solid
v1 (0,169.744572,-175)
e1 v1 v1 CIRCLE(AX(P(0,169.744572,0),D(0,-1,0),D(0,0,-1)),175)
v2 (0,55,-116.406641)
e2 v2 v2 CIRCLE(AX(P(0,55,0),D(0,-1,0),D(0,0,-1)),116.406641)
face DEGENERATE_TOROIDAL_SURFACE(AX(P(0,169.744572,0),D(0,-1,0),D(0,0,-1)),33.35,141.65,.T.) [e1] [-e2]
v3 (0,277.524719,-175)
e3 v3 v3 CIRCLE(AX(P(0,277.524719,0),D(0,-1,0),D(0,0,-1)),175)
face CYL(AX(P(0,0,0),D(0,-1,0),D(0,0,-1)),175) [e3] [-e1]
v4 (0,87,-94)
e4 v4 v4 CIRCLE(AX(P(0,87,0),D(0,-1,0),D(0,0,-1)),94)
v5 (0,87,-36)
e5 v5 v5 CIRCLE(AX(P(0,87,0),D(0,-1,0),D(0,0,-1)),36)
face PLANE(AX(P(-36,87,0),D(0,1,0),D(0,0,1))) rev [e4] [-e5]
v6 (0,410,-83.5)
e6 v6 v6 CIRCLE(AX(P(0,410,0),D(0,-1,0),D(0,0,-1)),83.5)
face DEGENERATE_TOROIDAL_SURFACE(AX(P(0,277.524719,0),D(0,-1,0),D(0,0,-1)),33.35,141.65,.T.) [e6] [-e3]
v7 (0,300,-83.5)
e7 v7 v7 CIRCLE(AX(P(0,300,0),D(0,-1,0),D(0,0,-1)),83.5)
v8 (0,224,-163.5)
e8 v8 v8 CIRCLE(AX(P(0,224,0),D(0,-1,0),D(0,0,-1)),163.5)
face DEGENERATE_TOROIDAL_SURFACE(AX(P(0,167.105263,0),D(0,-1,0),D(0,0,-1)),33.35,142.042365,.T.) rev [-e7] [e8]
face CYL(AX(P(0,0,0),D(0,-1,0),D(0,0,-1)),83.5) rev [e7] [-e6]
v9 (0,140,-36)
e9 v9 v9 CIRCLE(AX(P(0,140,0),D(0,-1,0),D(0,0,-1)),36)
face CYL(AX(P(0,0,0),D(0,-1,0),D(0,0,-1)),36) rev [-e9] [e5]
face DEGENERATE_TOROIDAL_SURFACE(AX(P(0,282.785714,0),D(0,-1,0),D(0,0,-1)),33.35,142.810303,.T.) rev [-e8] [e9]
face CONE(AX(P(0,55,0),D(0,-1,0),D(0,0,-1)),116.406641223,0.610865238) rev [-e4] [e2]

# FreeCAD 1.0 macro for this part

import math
import FreeCAD as App
import Part
import Sketcher
from FreeCAD import Vector
Q = App.Units.Quantity

doc = App.newDocument("Part")
body = doc.addObject("PartDesign::Body", "Body")

# Sketch on XY plane
sketch1 = doc.addObject("Sketcher::SketchObject", "Sketch")
body.addObject(sketch1)
sketch1.AttachmentSupport = (doc.XY_Plane, [""])
sketch1.MapMode = "FlatFace"
sketch1.addGeometry([
    Part.LineSegment(Vector(-84, 300, 0), Vector(-84, 410, 0)),  # 0
    Part.ArcOfCircle(Part.Circle(Vector(-33, 278, 0), Vector(0, 0, 1), 142), math.radians(111), math.radians(180)),  # 1
    Part.LineSegment(Vector(-175, 278, 0), Vector(-175, 170, 0)),  # 2
    Part.ArcOfCircle(Part.Circle(Vector(-33, 170, 0), Vector(0, 0, 1), 142), math.radians(-180), math.radians(-126)),  # 3
    Part.LineSegment(Vector(-116, 55, 0), Vector(-94, 87, 0)),  # 4
    Part.LineSegment(Vector(-94, 87, 0), Vector(-36, 87, 0)),  # 5
    Part.LineSegment(Vector(-36, 87, 0), Vector(-36, 140, 0)),  # 6
    Part.ArcOfCircle(Part.Circle(Vector(-33, 283, 0), Vector(0, 0, 1), 143), math.radians(-156), math.radians(-91)),  # 7
    Part.ArcOfCircle(Part.Circle(Vector(-33, 167, 0), Vector(0, 0, 1), 142), math.radians(111), math.radians(156)),  # 8
], False)
sketch1.addConstraint([
    Sketcher.Constraint("Coincident", 0, 2, 1, 1),
    Sketcher.Constraint("Tangent", 1, 2, 2, 1),
    Sketcher.Constraint("Tangent", 2, 2, 3, 1),
    Sketcher.Constraint("Coincident", 3, 2, 4, 1),
    Sketcher.Constraint("Coincident", 4, 2, 5, 1),
    Sketcher.Constraint("Coincident", 5, 2, 6, 1),
    Sketcher.Constraint("Coincident", 6, 2, 7, 2),
    Sketcher.Constraint("Coincident", 7, 1, 8, 2),
    Sketcher.Constraint("Coincident", 8, 1, 0, 1),
    Sketcher.Constraint("Vertical", 0),
    Sketcher.Constraint("Vertical", 2),
    Sketcher.Constraint("Horizontal", 5),
    Sketcher.Constraint("Vertical", 6),
    Sketcher.Constraint("Equal", 1, 3),
    Sketcher.Constraint("Vertical", 3, 3, 7, 3),
    Sketcher.Constraint("Vertical", 7, 3, 8, 3),
    Sketcher.Constraint("DistanceX", 5, 1, 5, 2, Q("58 mm")),
    Sketcher.Constraint("DistanceY", 0, 1, 0, 2, Q("110 mm")),
    Sketcher.Constraint("DistanceY", 6, 1, 6, 2, Q("53 mm")),
    Sketcher.Constraint("Angle", 4, Q("55 deg")),
    Sketcher.Constraint("Radius", 1, Q("141.65 mm")),
    Sketcher.Constraint("DistanceY", -1, 1, 0, 2, Q("410 mm")),
    Sketcher.Constraint("DistanceX", 1, 2, -1, 1, Q("175 mm")),
    Sketcher.Constraint("DistanceY", -1, 1, 3, 2, Q("55 mm")),
    Sketcher.Constraint("DistanceX", 4, 2, -1, 1, Q("94 mm")),
    Sketcher.Constraint("DistanceY", -1, 1, 4, 2, Q("87 mm")),
    Sketcher.Constraint("DistanceY", -1, 1, 7, 1, Q("224 mm")),
    Sketcher.Constraint("DistanceX", 7, 1, 8, 1, Q("80 mm")),
    Sketcher.Constraint("DistanceX", 0, 2, -1, 1, Q("83.5 mm")),
])
revolution = doc.addObject("PartDesign::Revolution", "Revolution")
body.addObject(revolution)
revolution.Profile = sketch1
revolution.ReferenceAxis = (sketch1, ["V_Axis"])
revolution.Angle = 360

doc.recompute()
